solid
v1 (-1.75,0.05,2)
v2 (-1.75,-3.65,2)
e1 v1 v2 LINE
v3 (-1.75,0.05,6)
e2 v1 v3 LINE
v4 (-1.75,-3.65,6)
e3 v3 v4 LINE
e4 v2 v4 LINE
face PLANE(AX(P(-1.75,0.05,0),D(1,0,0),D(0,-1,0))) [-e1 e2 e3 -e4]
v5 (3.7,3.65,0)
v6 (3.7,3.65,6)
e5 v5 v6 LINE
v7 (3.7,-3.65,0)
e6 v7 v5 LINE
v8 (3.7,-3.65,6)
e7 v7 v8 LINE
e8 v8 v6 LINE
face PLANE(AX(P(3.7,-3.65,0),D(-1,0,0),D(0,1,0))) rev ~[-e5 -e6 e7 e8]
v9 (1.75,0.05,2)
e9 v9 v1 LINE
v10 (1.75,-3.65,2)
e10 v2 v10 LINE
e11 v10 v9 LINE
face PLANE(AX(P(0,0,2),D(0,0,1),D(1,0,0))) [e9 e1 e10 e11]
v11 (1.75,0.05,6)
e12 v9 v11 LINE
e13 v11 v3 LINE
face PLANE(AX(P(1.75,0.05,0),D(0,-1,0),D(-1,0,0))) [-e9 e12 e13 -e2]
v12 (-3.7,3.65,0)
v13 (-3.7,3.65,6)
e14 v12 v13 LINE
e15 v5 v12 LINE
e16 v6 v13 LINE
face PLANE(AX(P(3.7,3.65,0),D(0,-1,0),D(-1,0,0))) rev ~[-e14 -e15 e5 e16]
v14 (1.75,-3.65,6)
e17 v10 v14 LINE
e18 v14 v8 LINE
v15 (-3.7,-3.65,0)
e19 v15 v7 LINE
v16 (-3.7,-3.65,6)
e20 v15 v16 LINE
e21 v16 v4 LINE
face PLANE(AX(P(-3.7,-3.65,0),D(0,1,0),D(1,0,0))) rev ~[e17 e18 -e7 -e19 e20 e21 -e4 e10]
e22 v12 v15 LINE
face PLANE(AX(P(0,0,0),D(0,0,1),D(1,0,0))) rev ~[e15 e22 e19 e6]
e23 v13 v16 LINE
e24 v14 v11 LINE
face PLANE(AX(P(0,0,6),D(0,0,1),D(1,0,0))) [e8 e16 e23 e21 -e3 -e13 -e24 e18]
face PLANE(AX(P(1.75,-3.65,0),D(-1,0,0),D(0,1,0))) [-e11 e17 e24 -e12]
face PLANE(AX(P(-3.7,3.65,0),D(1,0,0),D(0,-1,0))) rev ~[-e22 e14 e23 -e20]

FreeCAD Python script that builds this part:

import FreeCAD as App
import Part
import Sketcher

V = App.Vector
Q = App.Units.Quantity


def add_polygon(sketch, points):
    """Adds a closed chain of lines whose ends are joined by coincident constraints."""
    first, n = sketch.GeometryCount, len(points)
    for a, b in zip(points, points[1:] + points[:1]):
        sketch.addGeometry(Part.LineSegment(App.Vector(*a, 0), App.Vector(*b, 0)), False)
    for i in range(n):
        sketch.addConstraint(Sketcher.Constraint("Coincident", first + i, 2, first + (i + 1) % n, 1))

doc = App.newDocument("Part")
body = doc.addObject("PartDesign::Body", "Body")

# Sketch on XY plane
sketch1 = body.newObject("Sketcher::SketchObject", "Sketch")
sketch1.AttachmentSupport = (doc.getObject("XY_Plane"), [""])
sketch1.MapMode = "FlatFace"
add_polygon(sketch1, [(-3.7, 3.6), (-3.7, -3.6), (-1.8, -3.6), (-1.8, 0.1), (1.8, 0.1), (1.8, -3.6), (3.7, -3.6), (3.7, 3.6)])  # lines 0-7
sketch1.addConstraint(Sketcher.Constraint("Vertical", 0))
sketch1.addConstraint(Sketcher.Constraint("Horizontal", 1))
sketch1.addConstraint(Sketcher.Constraint("Vertical", 2))
sketch1.addConstraint(Sketcher.Constraint("Horizontal", 3))
sketch1.addConstraint(Sketcher.Constraint("Vertical", 4))
sketch1.addConstraint(Sketcher.Constraint("Horizontal", 5))
sketch1.addConstraint(Sketcher.Constraint("Vertical", 6))
sketch1.addConstraint(Sketcher.Constraint("Horizontal", 7))
sketch1.addConstraint(Sketcher.Constraint("Symmetric", 0, 2, 6, 2, -1, 1))
sketch1.addConstraint(Sketcher.Constraint("Symmetric", 1, 2, 4, 2, -2))
sketch1.addConstraint(Sketcher.Constraint("DistanceX", 3, 1, 3, 2, Q("3.5 mm")))
sketch1.addConstraint(Sketcher.Constraint("DistanceX", 7, 2, 7, 1, Q("7.4 mm")))
sketch1.addConstraint(Sketcher.Constraint("DistanceY", 0, 2, 0, 1, Q("7.3 mm")))
sketch1.addConstraint(Sketcher.Constraint("DistanceY", 2, 1, 2, 2, Q("3.7 mm")))
pad1 = body.newObject("PartDesign::Pad", "Pad")
pad1.Profile = sketch1
pad1.Length = 6

# Sketch on XY plane
sketch2 = body.newObject("Sketcher::SketchObject", "Sketch001")
sketch2.AttachmentSupport = (doc.getObject("XY_Plane"), [""])
sketch2.MapMode = "FlatFace"
add_polygon(sketch2, [(-1.8, 0.1), (-1.8, -3.6), (1.8, -3.6), (1.8, 0.1)])  # lines 0-3
sketch2.addConstraint(Sketcher.Constraint("Vertical", 0))
sketch2.addConstraint(Sketcher.Constraint("Horizontal", 1))
sketch2.addConstraint(Sketcher.Constraint("Vertical", 2))
sketch2.addConstraint(Sketcher.Constraint("Horizontal", 3))
sketch2.addConstraint(Sketcher.Constraint("DistanceX", 1, 1, 1, 2, Q("3.5 mm")))
sketch2.addConstraint(Sketcher.Constraint("DistanceY", 0, 2, 0, 1, Q("3.7 mm")))
sketch2.addConstraint(Sketcher.Constraint("DistanceX", 0, 2, -1, 1, Q("1.75 mm")))
sketch2.addConstraint(Sketcher.Constraint("DistanceY", 0, 2, -1, 1, Q("3.65 mm")))
pad2 = body.newObject("PartDesign::Pad", "Pad001")
pad2.Profile = sketch2
pad2.Length = 2

doc.recompute()
